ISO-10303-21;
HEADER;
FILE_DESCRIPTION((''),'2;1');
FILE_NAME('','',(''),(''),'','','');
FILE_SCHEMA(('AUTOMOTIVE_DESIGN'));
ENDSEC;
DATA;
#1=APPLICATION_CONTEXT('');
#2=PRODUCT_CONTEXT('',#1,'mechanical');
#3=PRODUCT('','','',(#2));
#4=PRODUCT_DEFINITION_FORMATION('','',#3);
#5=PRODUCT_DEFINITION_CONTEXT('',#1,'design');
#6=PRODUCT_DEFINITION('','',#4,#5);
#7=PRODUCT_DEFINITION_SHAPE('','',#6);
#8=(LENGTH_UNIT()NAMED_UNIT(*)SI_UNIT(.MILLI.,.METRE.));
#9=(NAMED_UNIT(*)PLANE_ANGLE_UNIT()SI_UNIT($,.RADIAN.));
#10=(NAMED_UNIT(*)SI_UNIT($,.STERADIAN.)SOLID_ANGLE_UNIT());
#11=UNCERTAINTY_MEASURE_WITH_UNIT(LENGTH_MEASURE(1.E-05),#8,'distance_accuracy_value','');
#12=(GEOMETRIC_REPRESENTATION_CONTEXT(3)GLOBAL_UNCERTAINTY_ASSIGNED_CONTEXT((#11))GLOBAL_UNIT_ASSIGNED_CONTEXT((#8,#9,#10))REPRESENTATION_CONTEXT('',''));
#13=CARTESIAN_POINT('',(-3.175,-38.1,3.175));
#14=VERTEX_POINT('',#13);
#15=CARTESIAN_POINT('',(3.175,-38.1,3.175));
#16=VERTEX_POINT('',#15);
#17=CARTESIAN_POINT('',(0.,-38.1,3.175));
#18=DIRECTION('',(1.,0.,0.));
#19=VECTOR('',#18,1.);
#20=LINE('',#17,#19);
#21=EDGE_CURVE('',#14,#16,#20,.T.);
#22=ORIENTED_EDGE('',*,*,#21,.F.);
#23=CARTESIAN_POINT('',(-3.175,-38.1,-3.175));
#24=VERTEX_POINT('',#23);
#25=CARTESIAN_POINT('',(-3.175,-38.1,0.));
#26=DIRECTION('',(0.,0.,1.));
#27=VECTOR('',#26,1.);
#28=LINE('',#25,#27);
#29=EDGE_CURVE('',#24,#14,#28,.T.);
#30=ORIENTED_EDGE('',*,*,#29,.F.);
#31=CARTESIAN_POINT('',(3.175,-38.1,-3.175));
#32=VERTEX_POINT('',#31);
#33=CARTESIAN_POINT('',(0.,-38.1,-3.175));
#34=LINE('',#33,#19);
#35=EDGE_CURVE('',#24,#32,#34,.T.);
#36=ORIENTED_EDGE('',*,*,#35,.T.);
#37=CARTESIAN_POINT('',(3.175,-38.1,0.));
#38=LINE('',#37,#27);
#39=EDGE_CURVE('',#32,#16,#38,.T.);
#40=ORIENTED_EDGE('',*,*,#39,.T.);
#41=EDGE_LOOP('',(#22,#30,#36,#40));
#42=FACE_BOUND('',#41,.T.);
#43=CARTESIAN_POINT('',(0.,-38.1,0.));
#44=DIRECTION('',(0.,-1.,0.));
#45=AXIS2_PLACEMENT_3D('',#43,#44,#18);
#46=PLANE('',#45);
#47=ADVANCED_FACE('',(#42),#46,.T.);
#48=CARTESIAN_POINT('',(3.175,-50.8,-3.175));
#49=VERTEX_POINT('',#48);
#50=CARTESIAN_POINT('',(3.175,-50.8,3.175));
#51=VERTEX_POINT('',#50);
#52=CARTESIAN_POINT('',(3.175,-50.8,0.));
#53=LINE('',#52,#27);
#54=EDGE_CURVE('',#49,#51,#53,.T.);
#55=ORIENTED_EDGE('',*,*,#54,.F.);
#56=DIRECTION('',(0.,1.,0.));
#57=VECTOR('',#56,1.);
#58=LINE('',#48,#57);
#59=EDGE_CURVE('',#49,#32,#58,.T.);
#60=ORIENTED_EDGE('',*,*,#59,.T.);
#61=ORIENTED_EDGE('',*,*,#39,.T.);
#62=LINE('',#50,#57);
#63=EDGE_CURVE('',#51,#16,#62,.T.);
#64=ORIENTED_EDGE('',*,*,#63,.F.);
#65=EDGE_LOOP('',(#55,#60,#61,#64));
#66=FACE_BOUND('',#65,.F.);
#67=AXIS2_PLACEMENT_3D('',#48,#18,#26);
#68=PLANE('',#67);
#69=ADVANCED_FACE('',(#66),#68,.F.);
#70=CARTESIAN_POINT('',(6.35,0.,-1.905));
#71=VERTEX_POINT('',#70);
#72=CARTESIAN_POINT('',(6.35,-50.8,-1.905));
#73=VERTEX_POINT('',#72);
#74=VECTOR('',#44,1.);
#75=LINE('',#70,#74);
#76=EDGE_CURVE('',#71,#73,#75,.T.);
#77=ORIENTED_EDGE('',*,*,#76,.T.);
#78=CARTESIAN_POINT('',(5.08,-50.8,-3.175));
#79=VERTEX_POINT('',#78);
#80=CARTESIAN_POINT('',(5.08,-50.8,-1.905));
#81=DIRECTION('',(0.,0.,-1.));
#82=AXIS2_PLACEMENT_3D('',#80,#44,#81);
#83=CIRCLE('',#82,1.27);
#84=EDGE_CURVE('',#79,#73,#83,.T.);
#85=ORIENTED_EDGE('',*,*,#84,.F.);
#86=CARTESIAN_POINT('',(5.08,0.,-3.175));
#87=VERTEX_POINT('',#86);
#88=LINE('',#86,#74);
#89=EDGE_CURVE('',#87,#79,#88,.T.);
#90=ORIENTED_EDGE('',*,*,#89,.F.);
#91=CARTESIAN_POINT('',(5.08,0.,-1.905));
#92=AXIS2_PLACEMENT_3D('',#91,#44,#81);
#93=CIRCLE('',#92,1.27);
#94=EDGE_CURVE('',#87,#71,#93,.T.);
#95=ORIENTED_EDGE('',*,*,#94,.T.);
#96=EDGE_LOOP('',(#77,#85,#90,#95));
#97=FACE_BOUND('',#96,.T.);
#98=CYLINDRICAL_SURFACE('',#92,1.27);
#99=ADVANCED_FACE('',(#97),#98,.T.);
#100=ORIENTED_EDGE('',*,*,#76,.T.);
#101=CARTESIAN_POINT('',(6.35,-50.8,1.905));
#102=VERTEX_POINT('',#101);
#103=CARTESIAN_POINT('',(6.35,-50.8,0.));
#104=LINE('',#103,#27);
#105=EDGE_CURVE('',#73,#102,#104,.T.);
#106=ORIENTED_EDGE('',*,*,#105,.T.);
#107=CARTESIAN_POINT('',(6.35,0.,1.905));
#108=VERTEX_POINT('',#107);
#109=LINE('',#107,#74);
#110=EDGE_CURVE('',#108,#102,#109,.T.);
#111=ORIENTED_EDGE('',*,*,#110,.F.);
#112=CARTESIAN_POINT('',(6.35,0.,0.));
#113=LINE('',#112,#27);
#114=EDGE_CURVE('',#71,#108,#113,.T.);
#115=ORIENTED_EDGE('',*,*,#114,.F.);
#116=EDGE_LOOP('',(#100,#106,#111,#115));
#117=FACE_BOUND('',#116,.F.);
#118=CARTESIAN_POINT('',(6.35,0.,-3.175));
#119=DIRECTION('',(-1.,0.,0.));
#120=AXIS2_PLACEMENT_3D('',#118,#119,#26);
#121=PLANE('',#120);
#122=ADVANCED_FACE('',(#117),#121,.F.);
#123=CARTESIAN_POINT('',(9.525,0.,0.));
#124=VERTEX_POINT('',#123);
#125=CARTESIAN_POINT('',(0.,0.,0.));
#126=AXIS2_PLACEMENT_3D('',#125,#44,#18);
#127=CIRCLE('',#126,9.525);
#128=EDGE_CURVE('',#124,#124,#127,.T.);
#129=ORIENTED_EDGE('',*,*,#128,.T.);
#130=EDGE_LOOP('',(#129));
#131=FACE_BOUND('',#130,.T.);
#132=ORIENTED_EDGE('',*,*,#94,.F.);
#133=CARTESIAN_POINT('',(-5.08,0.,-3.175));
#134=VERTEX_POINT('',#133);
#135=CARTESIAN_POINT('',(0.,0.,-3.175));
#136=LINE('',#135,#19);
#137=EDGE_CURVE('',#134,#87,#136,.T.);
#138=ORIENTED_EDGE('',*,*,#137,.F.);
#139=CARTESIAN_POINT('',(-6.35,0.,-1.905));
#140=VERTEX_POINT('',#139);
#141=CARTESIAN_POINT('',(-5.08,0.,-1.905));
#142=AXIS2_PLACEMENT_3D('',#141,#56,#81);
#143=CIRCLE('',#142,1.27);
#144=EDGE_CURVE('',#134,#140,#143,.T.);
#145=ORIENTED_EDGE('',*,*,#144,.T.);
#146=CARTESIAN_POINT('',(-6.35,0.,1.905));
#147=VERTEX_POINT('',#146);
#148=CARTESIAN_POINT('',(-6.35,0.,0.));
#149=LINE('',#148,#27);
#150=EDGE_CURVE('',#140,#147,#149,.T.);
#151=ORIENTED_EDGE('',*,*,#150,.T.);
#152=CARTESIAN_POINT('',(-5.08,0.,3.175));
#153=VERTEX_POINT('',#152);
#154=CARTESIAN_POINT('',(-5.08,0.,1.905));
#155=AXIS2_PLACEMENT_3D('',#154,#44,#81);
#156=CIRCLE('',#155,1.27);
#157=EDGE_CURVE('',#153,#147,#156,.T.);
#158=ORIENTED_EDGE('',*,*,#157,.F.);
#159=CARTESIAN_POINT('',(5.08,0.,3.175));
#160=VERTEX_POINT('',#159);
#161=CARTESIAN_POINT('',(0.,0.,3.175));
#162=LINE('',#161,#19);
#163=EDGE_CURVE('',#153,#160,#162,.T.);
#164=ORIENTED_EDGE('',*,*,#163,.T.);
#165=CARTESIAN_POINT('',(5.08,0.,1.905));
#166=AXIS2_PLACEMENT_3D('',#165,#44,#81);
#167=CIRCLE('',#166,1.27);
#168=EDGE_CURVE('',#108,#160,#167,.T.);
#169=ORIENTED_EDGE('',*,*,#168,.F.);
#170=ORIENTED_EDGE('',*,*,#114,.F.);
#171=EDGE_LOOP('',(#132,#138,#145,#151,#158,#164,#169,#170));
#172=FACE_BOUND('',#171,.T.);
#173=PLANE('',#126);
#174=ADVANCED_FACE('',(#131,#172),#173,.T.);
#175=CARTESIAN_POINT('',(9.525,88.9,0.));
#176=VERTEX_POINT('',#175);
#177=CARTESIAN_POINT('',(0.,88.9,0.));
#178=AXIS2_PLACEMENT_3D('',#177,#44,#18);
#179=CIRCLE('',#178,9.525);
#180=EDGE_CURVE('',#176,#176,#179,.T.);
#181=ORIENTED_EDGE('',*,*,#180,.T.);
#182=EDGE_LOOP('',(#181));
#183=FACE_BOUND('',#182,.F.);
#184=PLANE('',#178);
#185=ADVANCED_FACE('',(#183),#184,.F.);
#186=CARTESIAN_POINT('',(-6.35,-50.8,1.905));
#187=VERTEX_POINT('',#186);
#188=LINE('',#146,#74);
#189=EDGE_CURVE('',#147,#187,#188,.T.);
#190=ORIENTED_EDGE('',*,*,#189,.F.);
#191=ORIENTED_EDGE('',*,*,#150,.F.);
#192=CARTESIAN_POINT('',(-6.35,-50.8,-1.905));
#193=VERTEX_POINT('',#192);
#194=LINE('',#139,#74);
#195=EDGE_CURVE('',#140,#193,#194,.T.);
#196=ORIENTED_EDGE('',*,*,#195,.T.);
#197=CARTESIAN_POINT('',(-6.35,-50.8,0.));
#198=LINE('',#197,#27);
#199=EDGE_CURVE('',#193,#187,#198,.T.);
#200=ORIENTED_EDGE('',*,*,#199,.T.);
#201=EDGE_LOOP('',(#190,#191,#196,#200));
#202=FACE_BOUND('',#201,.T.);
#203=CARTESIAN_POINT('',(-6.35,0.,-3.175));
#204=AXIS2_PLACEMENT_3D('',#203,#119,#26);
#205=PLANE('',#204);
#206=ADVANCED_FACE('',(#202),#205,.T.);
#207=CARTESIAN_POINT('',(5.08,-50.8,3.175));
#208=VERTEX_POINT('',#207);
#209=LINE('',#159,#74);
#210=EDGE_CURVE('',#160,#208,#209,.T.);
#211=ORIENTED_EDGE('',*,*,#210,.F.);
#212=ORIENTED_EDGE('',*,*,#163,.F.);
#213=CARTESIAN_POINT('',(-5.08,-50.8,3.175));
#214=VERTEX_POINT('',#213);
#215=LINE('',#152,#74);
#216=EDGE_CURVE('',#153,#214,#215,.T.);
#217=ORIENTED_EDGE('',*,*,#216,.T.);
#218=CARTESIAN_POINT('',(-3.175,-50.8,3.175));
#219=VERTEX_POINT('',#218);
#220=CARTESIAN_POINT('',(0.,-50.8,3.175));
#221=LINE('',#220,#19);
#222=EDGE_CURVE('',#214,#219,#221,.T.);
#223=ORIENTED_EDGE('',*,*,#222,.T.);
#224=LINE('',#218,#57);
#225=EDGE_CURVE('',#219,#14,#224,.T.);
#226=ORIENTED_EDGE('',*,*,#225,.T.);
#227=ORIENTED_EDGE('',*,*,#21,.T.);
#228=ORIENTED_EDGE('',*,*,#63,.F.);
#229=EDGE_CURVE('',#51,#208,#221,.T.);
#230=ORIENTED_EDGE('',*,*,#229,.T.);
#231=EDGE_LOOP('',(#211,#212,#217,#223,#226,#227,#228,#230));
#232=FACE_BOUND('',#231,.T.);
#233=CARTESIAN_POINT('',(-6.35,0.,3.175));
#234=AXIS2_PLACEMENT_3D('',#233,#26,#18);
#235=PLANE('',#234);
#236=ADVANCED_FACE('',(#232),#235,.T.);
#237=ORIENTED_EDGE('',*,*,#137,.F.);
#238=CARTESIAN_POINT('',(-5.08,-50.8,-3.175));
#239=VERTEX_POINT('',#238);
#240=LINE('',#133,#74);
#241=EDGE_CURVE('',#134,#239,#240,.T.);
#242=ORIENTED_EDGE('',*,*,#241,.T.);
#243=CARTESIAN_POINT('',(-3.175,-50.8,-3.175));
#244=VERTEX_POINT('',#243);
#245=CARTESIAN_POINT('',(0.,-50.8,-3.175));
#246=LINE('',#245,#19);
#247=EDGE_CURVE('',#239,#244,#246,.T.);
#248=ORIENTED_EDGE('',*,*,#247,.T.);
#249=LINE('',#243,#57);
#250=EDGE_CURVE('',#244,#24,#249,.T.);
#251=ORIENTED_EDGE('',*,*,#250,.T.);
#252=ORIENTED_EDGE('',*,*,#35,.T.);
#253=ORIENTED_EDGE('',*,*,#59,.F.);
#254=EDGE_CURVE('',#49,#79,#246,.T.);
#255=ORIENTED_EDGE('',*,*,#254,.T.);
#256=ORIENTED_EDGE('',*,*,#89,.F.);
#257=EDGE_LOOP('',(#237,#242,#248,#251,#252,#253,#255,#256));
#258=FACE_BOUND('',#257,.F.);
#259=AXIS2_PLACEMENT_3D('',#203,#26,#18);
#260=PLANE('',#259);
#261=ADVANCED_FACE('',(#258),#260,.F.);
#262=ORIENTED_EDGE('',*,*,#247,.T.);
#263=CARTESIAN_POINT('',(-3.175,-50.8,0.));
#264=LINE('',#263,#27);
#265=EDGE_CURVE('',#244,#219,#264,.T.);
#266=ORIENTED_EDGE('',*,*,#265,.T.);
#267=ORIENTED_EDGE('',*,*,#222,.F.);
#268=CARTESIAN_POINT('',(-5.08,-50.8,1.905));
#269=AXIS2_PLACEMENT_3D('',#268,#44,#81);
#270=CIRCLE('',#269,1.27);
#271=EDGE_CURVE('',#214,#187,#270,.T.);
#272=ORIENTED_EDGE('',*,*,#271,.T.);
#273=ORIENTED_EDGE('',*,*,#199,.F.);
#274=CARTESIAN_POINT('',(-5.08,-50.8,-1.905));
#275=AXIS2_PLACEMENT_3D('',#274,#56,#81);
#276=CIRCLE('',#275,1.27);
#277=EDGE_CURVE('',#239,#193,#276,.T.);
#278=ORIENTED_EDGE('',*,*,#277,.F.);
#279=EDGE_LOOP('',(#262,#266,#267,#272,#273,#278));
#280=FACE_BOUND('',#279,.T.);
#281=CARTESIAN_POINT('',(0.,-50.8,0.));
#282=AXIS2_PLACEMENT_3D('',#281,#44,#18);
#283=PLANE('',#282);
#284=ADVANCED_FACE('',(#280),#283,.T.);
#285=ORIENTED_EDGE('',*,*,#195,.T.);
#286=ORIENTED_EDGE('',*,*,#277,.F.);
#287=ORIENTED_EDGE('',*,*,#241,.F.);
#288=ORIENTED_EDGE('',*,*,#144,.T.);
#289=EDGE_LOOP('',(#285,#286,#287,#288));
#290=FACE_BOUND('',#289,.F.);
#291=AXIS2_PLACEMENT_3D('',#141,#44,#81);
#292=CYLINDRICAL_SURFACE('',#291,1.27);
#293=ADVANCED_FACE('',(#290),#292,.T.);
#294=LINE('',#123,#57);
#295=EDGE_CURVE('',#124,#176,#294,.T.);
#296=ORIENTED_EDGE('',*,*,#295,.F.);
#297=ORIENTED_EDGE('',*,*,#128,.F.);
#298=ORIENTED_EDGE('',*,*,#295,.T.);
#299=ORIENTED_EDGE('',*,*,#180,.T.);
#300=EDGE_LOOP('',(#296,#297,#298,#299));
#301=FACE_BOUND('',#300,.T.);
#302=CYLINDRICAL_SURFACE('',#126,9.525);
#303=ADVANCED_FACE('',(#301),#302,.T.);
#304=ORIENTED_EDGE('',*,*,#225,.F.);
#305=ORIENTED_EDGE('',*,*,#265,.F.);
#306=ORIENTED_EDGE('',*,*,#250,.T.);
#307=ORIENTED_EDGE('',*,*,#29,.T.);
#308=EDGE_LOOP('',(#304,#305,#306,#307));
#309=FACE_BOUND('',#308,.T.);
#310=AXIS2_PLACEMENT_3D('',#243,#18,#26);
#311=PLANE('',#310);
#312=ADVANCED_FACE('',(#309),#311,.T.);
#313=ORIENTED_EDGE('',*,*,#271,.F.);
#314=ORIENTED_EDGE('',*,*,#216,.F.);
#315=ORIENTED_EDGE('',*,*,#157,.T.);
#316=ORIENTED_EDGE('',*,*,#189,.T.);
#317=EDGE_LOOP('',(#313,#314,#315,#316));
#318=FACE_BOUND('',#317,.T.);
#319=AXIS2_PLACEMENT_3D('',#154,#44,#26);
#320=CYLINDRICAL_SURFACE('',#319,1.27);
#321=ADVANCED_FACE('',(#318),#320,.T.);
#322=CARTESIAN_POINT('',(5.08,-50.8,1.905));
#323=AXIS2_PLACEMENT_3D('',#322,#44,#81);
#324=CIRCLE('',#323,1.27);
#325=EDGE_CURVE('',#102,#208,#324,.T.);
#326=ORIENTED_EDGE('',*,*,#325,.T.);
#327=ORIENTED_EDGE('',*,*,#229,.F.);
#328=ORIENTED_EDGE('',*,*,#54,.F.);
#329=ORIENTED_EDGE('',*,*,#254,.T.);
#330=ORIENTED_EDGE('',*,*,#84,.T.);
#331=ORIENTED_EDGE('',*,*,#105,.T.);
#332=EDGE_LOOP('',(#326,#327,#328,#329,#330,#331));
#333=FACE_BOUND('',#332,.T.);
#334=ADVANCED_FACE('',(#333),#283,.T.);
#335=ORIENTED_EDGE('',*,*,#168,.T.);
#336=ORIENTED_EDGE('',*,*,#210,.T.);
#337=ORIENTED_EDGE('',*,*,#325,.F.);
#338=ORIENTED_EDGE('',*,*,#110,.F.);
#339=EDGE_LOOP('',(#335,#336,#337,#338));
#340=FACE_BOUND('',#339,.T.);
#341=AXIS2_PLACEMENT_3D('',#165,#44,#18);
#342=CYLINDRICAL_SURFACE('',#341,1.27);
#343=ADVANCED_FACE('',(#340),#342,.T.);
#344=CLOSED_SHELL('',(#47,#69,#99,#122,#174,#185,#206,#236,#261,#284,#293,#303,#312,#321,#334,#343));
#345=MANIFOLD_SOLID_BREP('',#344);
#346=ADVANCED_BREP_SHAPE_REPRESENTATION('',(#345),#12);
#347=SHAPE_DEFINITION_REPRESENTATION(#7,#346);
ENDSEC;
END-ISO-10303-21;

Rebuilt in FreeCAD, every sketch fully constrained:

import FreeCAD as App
import Part
import Sketcher

V = App.Vector
Q = App.Units.Quantity


def edges_at(feature, points):
    """Names of the edges that pass closest to the given points."""
    edges = feature.Shape.Edges
    near = lambda p: min(range(len(edges)), key=lambda i: edges[i].distToShape(Part.Vertex(*p))[0])
    return sorted({f"Edge{near(p) + 1}" for p in points})


def add_polygon(sketch, points):
    """Adds a closed chain of lines whose ends are joined by coincident constraints."""
    first, n = sketch.GeometryCount, len(points)
    for a, b in zip(points, points[1:] + points[:1]):
        sketch.addGeometry(Part.LineSegment(App.Vector(*a, 0), App.Vector(*b, 0)), False)
    for i in range(n):
        sketch.addConstraint(Sketcher.Constraint("Coincident", first + i, 2, first + (i + 1) % n, 1))

doc = App.newDocument("Part")
params = doc.addObject("Spreadsheet::Sheet", "Params")
for row, (alias, value) in enumerate([
    ("sketch1_diameter", "0.75 in"),
    ("pad1_length", "3.5 in"),
    ("sketch2_width", "0.5 in"),
    ("sketch2_height", "0.25 in"),
    ("pad2_length", "2 in"),
    ("sketch3_width", "0.25 in"),
    ("pocket1_length", "0.5 in"),
    ("fillet_radius", "0.05 in"),
], start=1):
    params.set(f"A{row}", alias)
    params.set(f"B{row}", "=" + value)
    params.setAlias(f"B{row}", alias)

body = doc.addObject("PartDesign::Body", "Body")

# Sketch on XZ plane
sketch1 = body.newObject("Sketcher::SketchObject", "Sketch")
sketch1.AttachmentSupport = (doc.getObject("XZ_Plane"), [""])
sketch1.MapMode = "FlatFace"
sketch1.addGeometry(Part.Circle(V(0, 0, 0), V(0, 0, 1), 9.525), False)
sketch1.addConstraint([
    Sketcher.Constraint("Coincident", 0, 3, -1, 1),
    Sketcher.Constraint("Diameter", 0, Q("0.75 in")),
])
sketch1.setExpression("Constraints[1]", "Params.sketch1_diameter")
pad1 = body.newObject("PartDesign::Pad", "Pad")
pad1.Profile = sketch1
pad1.setExpression("Length", "Params.pad1_length")
pad1.Reversed = True

# Sketch on XZ plane
sketch2 = body.newObject("Sketcher::SketchObject", "Sketch001")
sketch2.AttachmentSupport = (doc.getObject("XZ_Plane"), [""])
sketch2.MapMode = "FlatFace"
add_polygon(sketch2, [(-6.35, 3.175), (-6.35, -3.175), (6.35, -3.175), (6.35, 3.175)])  # lines 0-3
sketch2.addConstraint([
    Sketcher.Constraint("Vertical", 0),
    Sketcher.Constraint("Horizontal", 1),
    Sketcher.Constraint("Vertical", 2),
    Sketcher.Constraint("Horizontal", 3),
    Sketcher.Constraint("Symmetric", 0, 2, 2, 2, -1, 1),
    Sketcher.Constraint("DistanceX", 1, 1, 1, 2, Q("0.5 in")),
    Sketcher.Constraint("DistanceY", 0, 2, 0, 1, Q("0.25 in")),
])
sketch2.setExpression("Constraints[9]", "Params.sketch2_width")
sketch2.setExpression("Constraints[10]", "Params.sketch2_height")
pad2 = body.newObject("PartDesign::Pad", "Pad001")
pad2.Profile = sketch2
pad2.setExpression("Length", "Params.pad2_length")

# Sketch on XZ plane
sketch3 = body.newObject("Sketcher::SketchObject", "Sketch002")
sketch3.AttachmentSupport = (doc.getObject("XZ_Plane"), [""])
sketch3.MapMode = "FlatFace"
sketch3.AttachmentOffset = App.Placement(V(0, 0, 2 * 25.4), App.Rotation())
add_polygon(sketch3, [(-3.175, 3.175), (-3.175, -3.175), (3.175, -3.175), (3.175, 3.175)])  # lines 0-3
sketch3.addConstraint([
    Sketcher.Constraint("Vertical", 0),
    Sketcher.Constraint("Horizontal", 1),
    Sketcher.Constraint("Vertical", 2),
    Sketcher.Constraint("Horizontal", 3),
    Sketcher.Constraint("Symmetric", 0, 2, 2, 2, -1, 1),
    Sketcher.Constraint("Equal", 3, 0),
    Sketcher.Constraint("DistanceX", 1, 1, 1, 2, Q("0.25 in")),
])
sketch3.setExpression("Constraints[10]", "Params.sketch3_width")
pocket1 = body.newObject("PartDesign::Pocket", "Pocket")
pocket1.Profile = sketch3
pocket1.setExpression("Length", "Params.pocket1_length")
doc.recompute()

fillet = body.newObject("PartDesign::Fillet", "Fillet")
fillet.Base = (pocket1, edges_at(pocket1, [
    (6.35, -25.4, 3.175),
    (-6.35, -25.4, 3.175),
    (-6.35, -25.4, -3.175),
    (6.35, -25.4, -3.175),
]))
fillet.setExpression("Radius", "Params.fillet_radius")

doc.recompute()
